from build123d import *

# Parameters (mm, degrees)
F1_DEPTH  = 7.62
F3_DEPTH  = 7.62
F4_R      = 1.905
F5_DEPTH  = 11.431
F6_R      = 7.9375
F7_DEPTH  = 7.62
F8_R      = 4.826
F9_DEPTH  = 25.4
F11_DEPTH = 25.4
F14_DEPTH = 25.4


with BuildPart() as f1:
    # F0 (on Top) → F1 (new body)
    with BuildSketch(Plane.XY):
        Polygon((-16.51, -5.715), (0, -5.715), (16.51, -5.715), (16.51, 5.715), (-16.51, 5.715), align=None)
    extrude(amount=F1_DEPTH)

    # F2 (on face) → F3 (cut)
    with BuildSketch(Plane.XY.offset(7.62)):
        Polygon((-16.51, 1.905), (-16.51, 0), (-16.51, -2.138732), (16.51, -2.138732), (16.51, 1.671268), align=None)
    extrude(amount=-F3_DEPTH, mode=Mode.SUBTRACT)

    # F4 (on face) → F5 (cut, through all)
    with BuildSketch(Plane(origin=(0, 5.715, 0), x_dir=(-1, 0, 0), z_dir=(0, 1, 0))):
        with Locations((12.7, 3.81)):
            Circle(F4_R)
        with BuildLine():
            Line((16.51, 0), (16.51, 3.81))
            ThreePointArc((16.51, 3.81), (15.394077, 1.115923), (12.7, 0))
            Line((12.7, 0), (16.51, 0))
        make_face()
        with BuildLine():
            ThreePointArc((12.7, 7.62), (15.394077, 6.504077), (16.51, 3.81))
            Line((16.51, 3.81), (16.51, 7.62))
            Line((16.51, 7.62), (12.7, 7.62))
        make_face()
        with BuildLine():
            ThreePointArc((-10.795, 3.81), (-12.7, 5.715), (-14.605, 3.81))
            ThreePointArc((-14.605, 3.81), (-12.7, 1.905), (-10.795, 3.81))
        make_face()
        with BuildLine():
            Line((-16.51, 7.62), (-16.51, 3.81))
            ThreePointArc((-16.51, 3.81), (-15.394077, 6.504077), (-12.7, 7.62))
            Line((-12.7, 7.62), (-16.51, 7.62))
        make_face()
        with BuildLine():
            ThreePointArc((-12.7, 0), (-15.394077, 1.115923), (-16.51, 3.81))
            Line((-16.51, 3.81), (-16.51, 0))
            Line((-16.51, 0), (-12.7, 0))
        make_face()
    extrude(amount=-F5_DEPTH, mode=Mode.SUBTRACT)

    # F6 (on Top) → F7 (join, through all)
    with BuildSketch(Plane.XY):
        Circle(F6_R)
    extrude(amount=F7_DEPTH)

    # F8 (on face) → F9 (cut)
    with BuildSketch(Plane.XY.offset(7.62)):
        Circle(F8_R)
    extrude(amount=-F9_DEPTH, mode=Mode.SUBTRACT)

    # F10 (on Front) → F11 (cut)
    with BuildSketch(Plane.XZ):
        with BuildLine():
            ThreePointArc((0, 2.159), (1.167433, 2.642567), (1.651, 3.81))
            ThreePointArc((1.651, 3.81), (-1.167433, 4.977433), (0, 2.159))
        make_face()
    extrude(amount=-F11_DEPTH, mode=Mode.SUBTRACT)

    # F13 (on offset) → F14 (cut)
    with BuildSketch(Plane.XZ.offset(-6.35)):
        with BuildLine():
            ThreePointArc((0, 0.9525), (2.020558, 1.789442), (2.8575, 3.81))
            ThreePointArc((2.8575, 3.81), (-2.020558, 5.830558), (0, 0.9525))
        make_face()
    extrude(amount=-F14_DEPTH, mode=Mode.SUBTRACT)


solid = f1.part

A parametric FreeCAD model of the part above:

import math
import FreeCAD as App
import Part
import Sketcher
from FreeCAD import Vector
Q = App.Units.Quantity

doc = App.newDocument("Part")
body = doc.addObject("PartDesign::Body", "Body")
body.AllowCompound = True

sketch1 = body.newObject("Sketcher::SketchObject", "Sketch")
sketch1.AttachmentSupport = (doc.getObject("XY_Plane"), [""])
sketch1.MapMode = "FlatFace"
sketch1.addGeometry([
    Part.LineSegment(Vector(-17, -6, 0), Vector(17, -6, 0)),
    Part.LineSegment(Vector(17, -6, 0), Vector(17, 6, 0)),
    Part.LineSegment(Vector(17, 6, 0), Vector(-17, 6, 0)),
    Part.LineSegment(Vector(-17, 6, 0), Vector(-17, -6, 0)),
], False)
sketch1.addConstraint([
    Sketcher.Constraint("Coincident", 0, 2, 1, 1),
    Sketcher.Constraint("Coincident", 1, 2, 2, 1),
    Sketcher.Constraint("Coincident", 2, 2, 3, 1),
    Sketcher.Constraint("Coincident", 3, 2, 0, 1),
    Sketcher.Constraint("Horizontal", 0),
    Sketcher.Constraint("Vertical", 1),
    Sketcher.Constraint("Horizontal", 2),
    Sketcher.Constraint("Vertical", 3),
    Sketcher.Constraint("Symmetric", 0, 2, 2, 2, -1, 1),
    Sketcher.Constraint("DistanceX", 0, 1, 0, 2, Q("1.3 in")),
    Sketcher.Constraint("DistanceY", 1, 1, 1, 2, Q("0.45 in")),
])
pad1 = body.newObject("PartDesign::Pad", "Pad")
pad1.Profile = sketch1
pad1.Length = Q("0.3 in")

sketch2 = body.newObject("Sketcher::SketchObject", "Sketch001")
sketch2.AttachmentSupport = (doc.getObject("XY_Plane"), [""])
sketch2.MapMode = "FlatFace"
sketch2.AttachmentOffset = App.Placement(Vector(0, 0, 0.3 * 25.4), App.Rotation())
sketch2.addGeometry([
    Part.LineSegment(Vector(-16.5, 1.9, 0), Vector(-16.5, -2.1, 0)),
    Part.LineSegment(Vector(-16.5, -2.1, 0), Vector(16.5, -2.1, 0)),
    Part.LineSegment(Vector(16.5, -2.1, 0), Vector(16.5, 1.7, 0)),
    Part.LineSegment(Vector(16.5, 1.7, 0), Vector(-16.5, 1.9, 0)),
], False)
sketch2.addConstraint([
    Sketcher.Constraint("Coincident", 0, 2, 1, 1),
    Sketcher.Constraint("Coincident", 1, 2, 2, 1),
    Sketcher.Constraint("Coincident", 2, 2, 3, 1),
    Sketcher.Constraint("Coincident", 3, 2, 0, 1),
    Sketcher.Constraint("Vertical", 0),
    Sketcher.Constraint("Horizontal", 1),
    Sketcher.Constraint("Vertical", 2),
    Sketcher.Constraint("DistanceX", 1, 1, 1, 2, Q("1.3 in")),
    Sketcher.Constraint("DistanceY", 2, 1, 2, 2, Q("0.15 in")),
    Sketcher.Constraint("DistanceX", 0, 2, -1, 1, Q("0.65 in")),
    Sketcher.Constraint("DistanceY", -1, 1, 3, 2, Q("0.075 in")),
    Sketcher.Constraint("DistanceY", 0, 2, 0, 1, Q("4.043732 mm")),
])
pocket1 = body.newObject("PartDesign::Pocket", "Pocket")
pocket1.Profile = sketch2
pocket1.Length = Q("0.3 in")

sketch3 = body.newObject("Sketcher::SketchObject", "Sketch002")
sketch3.AttachmentSupport = (doc.getObject("XZ_Plane"), [""])
sketch3.MapMode = "FlatFace"
sketch3.AttachmentOffset = App.Placement(Vector(0, 0, -0.225 * 25.4), App.Rotation())
sketch3.addGeometry([
    Part.Circle(Vector(-12.7, 3.8, 0), Vector(0, 0, 1), 1.9),
    Part.LineSegment(Vector(-16.5, 0, 0), Vector(-16.5, 3.8, 0)),
    Part.ArcOfCircle(Part.Circle(Vector(-12.7, 3.8, 0), Vector(0, 0, 1), 3.8), math.radians(180), math.radians(270)),
    Part.LineSegment(Vector(-12.7, 0, 0), Vector(-16.5, 0, 0)),
    Part.ArcOfCircle(Part.Circle(Vector(-12.7, 3.8, 0), Vector(0, 0, 1), 3.8), math.radians(90), math.radians(180)),
    Part.LineSegment(Vector(-16.5, 3.8, 0), Vector(-16.5, 7.6, 0)),
    Part.LineSegment(Vector(-16.5, 7.6, 0), Vector(-12.7, 7.6, 0)),
    Part.Circle(Vector(12.7, 3.8, 0), Vector(0, 0, 1), 1.9),
    Part.LineSegment(Vector(16.5, 7.6, 0), Vector(16.5, 3.8, 0)),
    Part.ArcOfCircle(Part.Circle(Vector(12.7, 3.8, 0), Vector(0, 0, 1), 3.8), math.radians(0), math.radians(90)),
    Part.LineSegment(Vector(12.7, 7.6, 0), Vector(16.5, 7.6, 0)),
    Part.ArcOfCircle(Part.Circle(Vector(12.7, 3.8, 0), Vector(0, 0, 1), 3.8), math.radians(-90), math.radians(0)),
    Part.LineSegment(Vector(16.5, 3.8, 0), Vector(16.5, 0, 0)),
    Part.LineSegment(Vector(16.5, 0, 0), Vector(12.7, 0, 0)),
], False)
sketch3.addConstraint([
    Sketcher.Constraint("Tangent", 1, 2, 2, 1),
    Sketcher.Constraint("Tangent", 2, 2, 3, 1),
    Sketcher.Constraint("Coincident", 3, 2, 1, 1),
    Sketcher.Constraint("Tangent", 4, 2, 5, 1),
    Sketcher.Constraint("Coincident", 5, 2, 6, 1),
    Sketcher.Constraint("Tangent", 6, 2, 4, 1),
    Sketcher.Constraint("Tangent", 8, 2, 9, 1),
    Sketcher.Constraint("Tangent", 9, 2, 10, 1),
    Sketcher.Constraint("Coincident", 10, 2, 8, 1),
    Sketcher.Constraint("Tangent", 11, 2, 12, 1),
    Sketcher.Constraint("Coincident", 12, 2, 13, 1),
    Sketcher.Constraint("Tangent", 13, 2, 11, 1),
    Sketcher.Constraint("Vertical", 1),
    Sketcher.Constraint("Horizontal", 3),
    Sketcher.Constraint("Vertical", 5),
    Sketcher.Constraint("Horizontal", 6),
    Sketcher.Constraint("Vertical", 8),
    Sketcher.Constraint("Horizontal", 10),
    Sketcher.Constraint("Vertical", 12),
    Sketcher.Constraint("Horizontal", 13),
    Sketcher.Constraint("Coincident", 2, 3, 0, 3),
    Sketcher.Constraint("Coincident", 4, 3, 0, 3),
    Sketcher.Constraint("Coincident", 9, 3, 7, 3),
    Sketcher.Constraint("Coincident", 11, 3, 7, 3),
    Sketcher.Constraint("Equal", 2, 4),
    Sketcher.Constraint("Equal", 0, 7),
    Sketcher.Constraint("Equal", 4, 9),
    Sketcher.Constraint("Equal", 9, 11),
    Sketcher.Constraint("Symmetric", 3, 2, 12, 2, -1, 1),
    Sketcher.Constraint("PointOnObject", 2, 2, -1),
    Sketcher.Constraint("Diameter", 0, Q("0.15 in")),
    Sketcher.Constraint("Radius", 2, Q("0.15 in")),
    Sketcher.Constraint("DistanceX", 0, 3, 7, 3, Q("1 in")),
])
pocket2 = body.newObject("PartDesign::Pocket", "Pocket001")
pocket2.Profile = sketch3
pocket2.Type = "ThroughAll"
pocket2.Reversed = True

sketch4 = body.newObject("Sketcher::SketchObject", "Sketch003")
sketch4.AttachmentSupport = (doc.getObject("XY_Plane"), [""])
sketch4.MapMode = "FlatFace"
sketch4.addGeometry(Part.Circle(Vector(0, 0, 0), Vector(0, 0, 1), 8), False)
sketch4.addConstraint([
    Sketcher.Constraint("Coincident", 0, 3, -1, 1),
    Sketcher.Constraint("Diameter", 0, Q("0.625 in")),
])
pad2 = body.newObject("PartDesign::Pad", "Pad001")
pad2.Profile = sketch4
pad2.Length = Q("0.3 in")

sketch5 = body.newObject("Sketcher::SketchObject", "Sketch004")
sketch5.AttachmentSupport = (doc.getObject("XY_Plane"), [""])
sketch5.MapMode = "FlatFace"
sketch5.AttachmentOffset = App.Placement(Vector(0, 0, 0.3 * 25.4), App.Rotation())
sketch5.addGeometry(Part.Circle(Vector(0, 0, 0), Vector(0, 0, 1), 4.8), False)
sketch5.addConstraint([
    Sketcher.Constraint("Coincident", 0, 3, -1, 1),
    Sketcher.Constraint("Diameter", 0, Q("0.38 in")),
])
pocket3 = body.newObject("PartDesign::Pocket", "Pocket002")
pocket3.Profile = sketch5
pocket3.Length = Q("1 in")

sketch6 = body.newObject("Sketcher::SketchObject", "Sketch005")
sketch6.AttachmentSupport = (doc.getObject("XZ_Plane"), [""])
sketch6.MapMode = "FlatFace"
sketch6.addGeometry([
    Part.ArcOfCircle(Part.Circle(Vector(0, 3.8, 0), Vector(0, 0, 1), 1.7), math.radians(-90), math.radians(0)),
    Part.ArcOfCircle(Part.Circle(Vector(0, 3.8, 0), Vector(0, 0, 1), 1.7), math.radians(0), math.radians(270)),
], False)
sketch6.addConstraint([
    Sketcher.Constraint("Tangent", 0, 1, 1, 2),
    Sketcher.Constraint("Coincident", 1, 1, 0, 2),
    Sketcher.Constraint("PointOnObject", 0, 3, -2),
    Sketcher.Constraint("PointOnObject", 0, 1, -2),
    Sketcher.Constraint("Horizontal", 0, 3, 1, 1),
    Sketcher.Constraint("Radius", 0, Q("0.065 in")),
    Sketcher.Constraint("DistanceY", -1, 1, 0, 3, Q("0.15 in")),
])
pocket4 = body.newObject("PartDesign::Pocket", "Pocket003")
pocket4.Profile = sketch6
pocket4.Length = Q("1 in")

sketch7 = body.newObject("Sketcher::SketchObject", "Sketch006")
sketch7.AttachmentSupport = (doc.getObject("XZ_Plane"), [""])
sketch7.MapMode = "FlatFace"
sketch7.AttachmentOffset = App.Placement(Vector(0, 0, -0.25 * 25.4), App.Rotation())
sketch7.addGeometry([
    Part.ArcOfCircle(Part.Circle(Vector(0, 3.8, 0), Vector(0, 0, 1), 2.9), math.radians(-90), math.radians(0)),
    Part.ArcOfCircle(Part.Circle(Vector(0, 3.8, 0), Vector(0, 0, 1), 2.9), math.radians(0), math.radians(270)),
], False)
sketch7.addConstraint([
    Sketcher.Constraint("Tangent", 0, 1, 1, 2),
    Sketcher.Constraint("Coincident", 1, 1, 0, 2),
    Sketcher.Constraint("PointOnObject", 0, 3, -2),
    Sketcher.Constraint("PointOnObject", 0, 1, -2),
    Sketcher.Constraint("Horizontal", 0, 3, 1, 1),
    Sketcher.Constraint("Radius", 0, Q("0.1124999 in")),
    Sketcher.Constraint("DistanceY", -1, 1, 0, 3, Q("0.1499999 in")),
])
pocket5 = body.newObject("PartDesign::Pocket", "Pocket004")
pocket5.Profile = sketch7
pocket5.Length = Q("1 in")

doc.recompute()
